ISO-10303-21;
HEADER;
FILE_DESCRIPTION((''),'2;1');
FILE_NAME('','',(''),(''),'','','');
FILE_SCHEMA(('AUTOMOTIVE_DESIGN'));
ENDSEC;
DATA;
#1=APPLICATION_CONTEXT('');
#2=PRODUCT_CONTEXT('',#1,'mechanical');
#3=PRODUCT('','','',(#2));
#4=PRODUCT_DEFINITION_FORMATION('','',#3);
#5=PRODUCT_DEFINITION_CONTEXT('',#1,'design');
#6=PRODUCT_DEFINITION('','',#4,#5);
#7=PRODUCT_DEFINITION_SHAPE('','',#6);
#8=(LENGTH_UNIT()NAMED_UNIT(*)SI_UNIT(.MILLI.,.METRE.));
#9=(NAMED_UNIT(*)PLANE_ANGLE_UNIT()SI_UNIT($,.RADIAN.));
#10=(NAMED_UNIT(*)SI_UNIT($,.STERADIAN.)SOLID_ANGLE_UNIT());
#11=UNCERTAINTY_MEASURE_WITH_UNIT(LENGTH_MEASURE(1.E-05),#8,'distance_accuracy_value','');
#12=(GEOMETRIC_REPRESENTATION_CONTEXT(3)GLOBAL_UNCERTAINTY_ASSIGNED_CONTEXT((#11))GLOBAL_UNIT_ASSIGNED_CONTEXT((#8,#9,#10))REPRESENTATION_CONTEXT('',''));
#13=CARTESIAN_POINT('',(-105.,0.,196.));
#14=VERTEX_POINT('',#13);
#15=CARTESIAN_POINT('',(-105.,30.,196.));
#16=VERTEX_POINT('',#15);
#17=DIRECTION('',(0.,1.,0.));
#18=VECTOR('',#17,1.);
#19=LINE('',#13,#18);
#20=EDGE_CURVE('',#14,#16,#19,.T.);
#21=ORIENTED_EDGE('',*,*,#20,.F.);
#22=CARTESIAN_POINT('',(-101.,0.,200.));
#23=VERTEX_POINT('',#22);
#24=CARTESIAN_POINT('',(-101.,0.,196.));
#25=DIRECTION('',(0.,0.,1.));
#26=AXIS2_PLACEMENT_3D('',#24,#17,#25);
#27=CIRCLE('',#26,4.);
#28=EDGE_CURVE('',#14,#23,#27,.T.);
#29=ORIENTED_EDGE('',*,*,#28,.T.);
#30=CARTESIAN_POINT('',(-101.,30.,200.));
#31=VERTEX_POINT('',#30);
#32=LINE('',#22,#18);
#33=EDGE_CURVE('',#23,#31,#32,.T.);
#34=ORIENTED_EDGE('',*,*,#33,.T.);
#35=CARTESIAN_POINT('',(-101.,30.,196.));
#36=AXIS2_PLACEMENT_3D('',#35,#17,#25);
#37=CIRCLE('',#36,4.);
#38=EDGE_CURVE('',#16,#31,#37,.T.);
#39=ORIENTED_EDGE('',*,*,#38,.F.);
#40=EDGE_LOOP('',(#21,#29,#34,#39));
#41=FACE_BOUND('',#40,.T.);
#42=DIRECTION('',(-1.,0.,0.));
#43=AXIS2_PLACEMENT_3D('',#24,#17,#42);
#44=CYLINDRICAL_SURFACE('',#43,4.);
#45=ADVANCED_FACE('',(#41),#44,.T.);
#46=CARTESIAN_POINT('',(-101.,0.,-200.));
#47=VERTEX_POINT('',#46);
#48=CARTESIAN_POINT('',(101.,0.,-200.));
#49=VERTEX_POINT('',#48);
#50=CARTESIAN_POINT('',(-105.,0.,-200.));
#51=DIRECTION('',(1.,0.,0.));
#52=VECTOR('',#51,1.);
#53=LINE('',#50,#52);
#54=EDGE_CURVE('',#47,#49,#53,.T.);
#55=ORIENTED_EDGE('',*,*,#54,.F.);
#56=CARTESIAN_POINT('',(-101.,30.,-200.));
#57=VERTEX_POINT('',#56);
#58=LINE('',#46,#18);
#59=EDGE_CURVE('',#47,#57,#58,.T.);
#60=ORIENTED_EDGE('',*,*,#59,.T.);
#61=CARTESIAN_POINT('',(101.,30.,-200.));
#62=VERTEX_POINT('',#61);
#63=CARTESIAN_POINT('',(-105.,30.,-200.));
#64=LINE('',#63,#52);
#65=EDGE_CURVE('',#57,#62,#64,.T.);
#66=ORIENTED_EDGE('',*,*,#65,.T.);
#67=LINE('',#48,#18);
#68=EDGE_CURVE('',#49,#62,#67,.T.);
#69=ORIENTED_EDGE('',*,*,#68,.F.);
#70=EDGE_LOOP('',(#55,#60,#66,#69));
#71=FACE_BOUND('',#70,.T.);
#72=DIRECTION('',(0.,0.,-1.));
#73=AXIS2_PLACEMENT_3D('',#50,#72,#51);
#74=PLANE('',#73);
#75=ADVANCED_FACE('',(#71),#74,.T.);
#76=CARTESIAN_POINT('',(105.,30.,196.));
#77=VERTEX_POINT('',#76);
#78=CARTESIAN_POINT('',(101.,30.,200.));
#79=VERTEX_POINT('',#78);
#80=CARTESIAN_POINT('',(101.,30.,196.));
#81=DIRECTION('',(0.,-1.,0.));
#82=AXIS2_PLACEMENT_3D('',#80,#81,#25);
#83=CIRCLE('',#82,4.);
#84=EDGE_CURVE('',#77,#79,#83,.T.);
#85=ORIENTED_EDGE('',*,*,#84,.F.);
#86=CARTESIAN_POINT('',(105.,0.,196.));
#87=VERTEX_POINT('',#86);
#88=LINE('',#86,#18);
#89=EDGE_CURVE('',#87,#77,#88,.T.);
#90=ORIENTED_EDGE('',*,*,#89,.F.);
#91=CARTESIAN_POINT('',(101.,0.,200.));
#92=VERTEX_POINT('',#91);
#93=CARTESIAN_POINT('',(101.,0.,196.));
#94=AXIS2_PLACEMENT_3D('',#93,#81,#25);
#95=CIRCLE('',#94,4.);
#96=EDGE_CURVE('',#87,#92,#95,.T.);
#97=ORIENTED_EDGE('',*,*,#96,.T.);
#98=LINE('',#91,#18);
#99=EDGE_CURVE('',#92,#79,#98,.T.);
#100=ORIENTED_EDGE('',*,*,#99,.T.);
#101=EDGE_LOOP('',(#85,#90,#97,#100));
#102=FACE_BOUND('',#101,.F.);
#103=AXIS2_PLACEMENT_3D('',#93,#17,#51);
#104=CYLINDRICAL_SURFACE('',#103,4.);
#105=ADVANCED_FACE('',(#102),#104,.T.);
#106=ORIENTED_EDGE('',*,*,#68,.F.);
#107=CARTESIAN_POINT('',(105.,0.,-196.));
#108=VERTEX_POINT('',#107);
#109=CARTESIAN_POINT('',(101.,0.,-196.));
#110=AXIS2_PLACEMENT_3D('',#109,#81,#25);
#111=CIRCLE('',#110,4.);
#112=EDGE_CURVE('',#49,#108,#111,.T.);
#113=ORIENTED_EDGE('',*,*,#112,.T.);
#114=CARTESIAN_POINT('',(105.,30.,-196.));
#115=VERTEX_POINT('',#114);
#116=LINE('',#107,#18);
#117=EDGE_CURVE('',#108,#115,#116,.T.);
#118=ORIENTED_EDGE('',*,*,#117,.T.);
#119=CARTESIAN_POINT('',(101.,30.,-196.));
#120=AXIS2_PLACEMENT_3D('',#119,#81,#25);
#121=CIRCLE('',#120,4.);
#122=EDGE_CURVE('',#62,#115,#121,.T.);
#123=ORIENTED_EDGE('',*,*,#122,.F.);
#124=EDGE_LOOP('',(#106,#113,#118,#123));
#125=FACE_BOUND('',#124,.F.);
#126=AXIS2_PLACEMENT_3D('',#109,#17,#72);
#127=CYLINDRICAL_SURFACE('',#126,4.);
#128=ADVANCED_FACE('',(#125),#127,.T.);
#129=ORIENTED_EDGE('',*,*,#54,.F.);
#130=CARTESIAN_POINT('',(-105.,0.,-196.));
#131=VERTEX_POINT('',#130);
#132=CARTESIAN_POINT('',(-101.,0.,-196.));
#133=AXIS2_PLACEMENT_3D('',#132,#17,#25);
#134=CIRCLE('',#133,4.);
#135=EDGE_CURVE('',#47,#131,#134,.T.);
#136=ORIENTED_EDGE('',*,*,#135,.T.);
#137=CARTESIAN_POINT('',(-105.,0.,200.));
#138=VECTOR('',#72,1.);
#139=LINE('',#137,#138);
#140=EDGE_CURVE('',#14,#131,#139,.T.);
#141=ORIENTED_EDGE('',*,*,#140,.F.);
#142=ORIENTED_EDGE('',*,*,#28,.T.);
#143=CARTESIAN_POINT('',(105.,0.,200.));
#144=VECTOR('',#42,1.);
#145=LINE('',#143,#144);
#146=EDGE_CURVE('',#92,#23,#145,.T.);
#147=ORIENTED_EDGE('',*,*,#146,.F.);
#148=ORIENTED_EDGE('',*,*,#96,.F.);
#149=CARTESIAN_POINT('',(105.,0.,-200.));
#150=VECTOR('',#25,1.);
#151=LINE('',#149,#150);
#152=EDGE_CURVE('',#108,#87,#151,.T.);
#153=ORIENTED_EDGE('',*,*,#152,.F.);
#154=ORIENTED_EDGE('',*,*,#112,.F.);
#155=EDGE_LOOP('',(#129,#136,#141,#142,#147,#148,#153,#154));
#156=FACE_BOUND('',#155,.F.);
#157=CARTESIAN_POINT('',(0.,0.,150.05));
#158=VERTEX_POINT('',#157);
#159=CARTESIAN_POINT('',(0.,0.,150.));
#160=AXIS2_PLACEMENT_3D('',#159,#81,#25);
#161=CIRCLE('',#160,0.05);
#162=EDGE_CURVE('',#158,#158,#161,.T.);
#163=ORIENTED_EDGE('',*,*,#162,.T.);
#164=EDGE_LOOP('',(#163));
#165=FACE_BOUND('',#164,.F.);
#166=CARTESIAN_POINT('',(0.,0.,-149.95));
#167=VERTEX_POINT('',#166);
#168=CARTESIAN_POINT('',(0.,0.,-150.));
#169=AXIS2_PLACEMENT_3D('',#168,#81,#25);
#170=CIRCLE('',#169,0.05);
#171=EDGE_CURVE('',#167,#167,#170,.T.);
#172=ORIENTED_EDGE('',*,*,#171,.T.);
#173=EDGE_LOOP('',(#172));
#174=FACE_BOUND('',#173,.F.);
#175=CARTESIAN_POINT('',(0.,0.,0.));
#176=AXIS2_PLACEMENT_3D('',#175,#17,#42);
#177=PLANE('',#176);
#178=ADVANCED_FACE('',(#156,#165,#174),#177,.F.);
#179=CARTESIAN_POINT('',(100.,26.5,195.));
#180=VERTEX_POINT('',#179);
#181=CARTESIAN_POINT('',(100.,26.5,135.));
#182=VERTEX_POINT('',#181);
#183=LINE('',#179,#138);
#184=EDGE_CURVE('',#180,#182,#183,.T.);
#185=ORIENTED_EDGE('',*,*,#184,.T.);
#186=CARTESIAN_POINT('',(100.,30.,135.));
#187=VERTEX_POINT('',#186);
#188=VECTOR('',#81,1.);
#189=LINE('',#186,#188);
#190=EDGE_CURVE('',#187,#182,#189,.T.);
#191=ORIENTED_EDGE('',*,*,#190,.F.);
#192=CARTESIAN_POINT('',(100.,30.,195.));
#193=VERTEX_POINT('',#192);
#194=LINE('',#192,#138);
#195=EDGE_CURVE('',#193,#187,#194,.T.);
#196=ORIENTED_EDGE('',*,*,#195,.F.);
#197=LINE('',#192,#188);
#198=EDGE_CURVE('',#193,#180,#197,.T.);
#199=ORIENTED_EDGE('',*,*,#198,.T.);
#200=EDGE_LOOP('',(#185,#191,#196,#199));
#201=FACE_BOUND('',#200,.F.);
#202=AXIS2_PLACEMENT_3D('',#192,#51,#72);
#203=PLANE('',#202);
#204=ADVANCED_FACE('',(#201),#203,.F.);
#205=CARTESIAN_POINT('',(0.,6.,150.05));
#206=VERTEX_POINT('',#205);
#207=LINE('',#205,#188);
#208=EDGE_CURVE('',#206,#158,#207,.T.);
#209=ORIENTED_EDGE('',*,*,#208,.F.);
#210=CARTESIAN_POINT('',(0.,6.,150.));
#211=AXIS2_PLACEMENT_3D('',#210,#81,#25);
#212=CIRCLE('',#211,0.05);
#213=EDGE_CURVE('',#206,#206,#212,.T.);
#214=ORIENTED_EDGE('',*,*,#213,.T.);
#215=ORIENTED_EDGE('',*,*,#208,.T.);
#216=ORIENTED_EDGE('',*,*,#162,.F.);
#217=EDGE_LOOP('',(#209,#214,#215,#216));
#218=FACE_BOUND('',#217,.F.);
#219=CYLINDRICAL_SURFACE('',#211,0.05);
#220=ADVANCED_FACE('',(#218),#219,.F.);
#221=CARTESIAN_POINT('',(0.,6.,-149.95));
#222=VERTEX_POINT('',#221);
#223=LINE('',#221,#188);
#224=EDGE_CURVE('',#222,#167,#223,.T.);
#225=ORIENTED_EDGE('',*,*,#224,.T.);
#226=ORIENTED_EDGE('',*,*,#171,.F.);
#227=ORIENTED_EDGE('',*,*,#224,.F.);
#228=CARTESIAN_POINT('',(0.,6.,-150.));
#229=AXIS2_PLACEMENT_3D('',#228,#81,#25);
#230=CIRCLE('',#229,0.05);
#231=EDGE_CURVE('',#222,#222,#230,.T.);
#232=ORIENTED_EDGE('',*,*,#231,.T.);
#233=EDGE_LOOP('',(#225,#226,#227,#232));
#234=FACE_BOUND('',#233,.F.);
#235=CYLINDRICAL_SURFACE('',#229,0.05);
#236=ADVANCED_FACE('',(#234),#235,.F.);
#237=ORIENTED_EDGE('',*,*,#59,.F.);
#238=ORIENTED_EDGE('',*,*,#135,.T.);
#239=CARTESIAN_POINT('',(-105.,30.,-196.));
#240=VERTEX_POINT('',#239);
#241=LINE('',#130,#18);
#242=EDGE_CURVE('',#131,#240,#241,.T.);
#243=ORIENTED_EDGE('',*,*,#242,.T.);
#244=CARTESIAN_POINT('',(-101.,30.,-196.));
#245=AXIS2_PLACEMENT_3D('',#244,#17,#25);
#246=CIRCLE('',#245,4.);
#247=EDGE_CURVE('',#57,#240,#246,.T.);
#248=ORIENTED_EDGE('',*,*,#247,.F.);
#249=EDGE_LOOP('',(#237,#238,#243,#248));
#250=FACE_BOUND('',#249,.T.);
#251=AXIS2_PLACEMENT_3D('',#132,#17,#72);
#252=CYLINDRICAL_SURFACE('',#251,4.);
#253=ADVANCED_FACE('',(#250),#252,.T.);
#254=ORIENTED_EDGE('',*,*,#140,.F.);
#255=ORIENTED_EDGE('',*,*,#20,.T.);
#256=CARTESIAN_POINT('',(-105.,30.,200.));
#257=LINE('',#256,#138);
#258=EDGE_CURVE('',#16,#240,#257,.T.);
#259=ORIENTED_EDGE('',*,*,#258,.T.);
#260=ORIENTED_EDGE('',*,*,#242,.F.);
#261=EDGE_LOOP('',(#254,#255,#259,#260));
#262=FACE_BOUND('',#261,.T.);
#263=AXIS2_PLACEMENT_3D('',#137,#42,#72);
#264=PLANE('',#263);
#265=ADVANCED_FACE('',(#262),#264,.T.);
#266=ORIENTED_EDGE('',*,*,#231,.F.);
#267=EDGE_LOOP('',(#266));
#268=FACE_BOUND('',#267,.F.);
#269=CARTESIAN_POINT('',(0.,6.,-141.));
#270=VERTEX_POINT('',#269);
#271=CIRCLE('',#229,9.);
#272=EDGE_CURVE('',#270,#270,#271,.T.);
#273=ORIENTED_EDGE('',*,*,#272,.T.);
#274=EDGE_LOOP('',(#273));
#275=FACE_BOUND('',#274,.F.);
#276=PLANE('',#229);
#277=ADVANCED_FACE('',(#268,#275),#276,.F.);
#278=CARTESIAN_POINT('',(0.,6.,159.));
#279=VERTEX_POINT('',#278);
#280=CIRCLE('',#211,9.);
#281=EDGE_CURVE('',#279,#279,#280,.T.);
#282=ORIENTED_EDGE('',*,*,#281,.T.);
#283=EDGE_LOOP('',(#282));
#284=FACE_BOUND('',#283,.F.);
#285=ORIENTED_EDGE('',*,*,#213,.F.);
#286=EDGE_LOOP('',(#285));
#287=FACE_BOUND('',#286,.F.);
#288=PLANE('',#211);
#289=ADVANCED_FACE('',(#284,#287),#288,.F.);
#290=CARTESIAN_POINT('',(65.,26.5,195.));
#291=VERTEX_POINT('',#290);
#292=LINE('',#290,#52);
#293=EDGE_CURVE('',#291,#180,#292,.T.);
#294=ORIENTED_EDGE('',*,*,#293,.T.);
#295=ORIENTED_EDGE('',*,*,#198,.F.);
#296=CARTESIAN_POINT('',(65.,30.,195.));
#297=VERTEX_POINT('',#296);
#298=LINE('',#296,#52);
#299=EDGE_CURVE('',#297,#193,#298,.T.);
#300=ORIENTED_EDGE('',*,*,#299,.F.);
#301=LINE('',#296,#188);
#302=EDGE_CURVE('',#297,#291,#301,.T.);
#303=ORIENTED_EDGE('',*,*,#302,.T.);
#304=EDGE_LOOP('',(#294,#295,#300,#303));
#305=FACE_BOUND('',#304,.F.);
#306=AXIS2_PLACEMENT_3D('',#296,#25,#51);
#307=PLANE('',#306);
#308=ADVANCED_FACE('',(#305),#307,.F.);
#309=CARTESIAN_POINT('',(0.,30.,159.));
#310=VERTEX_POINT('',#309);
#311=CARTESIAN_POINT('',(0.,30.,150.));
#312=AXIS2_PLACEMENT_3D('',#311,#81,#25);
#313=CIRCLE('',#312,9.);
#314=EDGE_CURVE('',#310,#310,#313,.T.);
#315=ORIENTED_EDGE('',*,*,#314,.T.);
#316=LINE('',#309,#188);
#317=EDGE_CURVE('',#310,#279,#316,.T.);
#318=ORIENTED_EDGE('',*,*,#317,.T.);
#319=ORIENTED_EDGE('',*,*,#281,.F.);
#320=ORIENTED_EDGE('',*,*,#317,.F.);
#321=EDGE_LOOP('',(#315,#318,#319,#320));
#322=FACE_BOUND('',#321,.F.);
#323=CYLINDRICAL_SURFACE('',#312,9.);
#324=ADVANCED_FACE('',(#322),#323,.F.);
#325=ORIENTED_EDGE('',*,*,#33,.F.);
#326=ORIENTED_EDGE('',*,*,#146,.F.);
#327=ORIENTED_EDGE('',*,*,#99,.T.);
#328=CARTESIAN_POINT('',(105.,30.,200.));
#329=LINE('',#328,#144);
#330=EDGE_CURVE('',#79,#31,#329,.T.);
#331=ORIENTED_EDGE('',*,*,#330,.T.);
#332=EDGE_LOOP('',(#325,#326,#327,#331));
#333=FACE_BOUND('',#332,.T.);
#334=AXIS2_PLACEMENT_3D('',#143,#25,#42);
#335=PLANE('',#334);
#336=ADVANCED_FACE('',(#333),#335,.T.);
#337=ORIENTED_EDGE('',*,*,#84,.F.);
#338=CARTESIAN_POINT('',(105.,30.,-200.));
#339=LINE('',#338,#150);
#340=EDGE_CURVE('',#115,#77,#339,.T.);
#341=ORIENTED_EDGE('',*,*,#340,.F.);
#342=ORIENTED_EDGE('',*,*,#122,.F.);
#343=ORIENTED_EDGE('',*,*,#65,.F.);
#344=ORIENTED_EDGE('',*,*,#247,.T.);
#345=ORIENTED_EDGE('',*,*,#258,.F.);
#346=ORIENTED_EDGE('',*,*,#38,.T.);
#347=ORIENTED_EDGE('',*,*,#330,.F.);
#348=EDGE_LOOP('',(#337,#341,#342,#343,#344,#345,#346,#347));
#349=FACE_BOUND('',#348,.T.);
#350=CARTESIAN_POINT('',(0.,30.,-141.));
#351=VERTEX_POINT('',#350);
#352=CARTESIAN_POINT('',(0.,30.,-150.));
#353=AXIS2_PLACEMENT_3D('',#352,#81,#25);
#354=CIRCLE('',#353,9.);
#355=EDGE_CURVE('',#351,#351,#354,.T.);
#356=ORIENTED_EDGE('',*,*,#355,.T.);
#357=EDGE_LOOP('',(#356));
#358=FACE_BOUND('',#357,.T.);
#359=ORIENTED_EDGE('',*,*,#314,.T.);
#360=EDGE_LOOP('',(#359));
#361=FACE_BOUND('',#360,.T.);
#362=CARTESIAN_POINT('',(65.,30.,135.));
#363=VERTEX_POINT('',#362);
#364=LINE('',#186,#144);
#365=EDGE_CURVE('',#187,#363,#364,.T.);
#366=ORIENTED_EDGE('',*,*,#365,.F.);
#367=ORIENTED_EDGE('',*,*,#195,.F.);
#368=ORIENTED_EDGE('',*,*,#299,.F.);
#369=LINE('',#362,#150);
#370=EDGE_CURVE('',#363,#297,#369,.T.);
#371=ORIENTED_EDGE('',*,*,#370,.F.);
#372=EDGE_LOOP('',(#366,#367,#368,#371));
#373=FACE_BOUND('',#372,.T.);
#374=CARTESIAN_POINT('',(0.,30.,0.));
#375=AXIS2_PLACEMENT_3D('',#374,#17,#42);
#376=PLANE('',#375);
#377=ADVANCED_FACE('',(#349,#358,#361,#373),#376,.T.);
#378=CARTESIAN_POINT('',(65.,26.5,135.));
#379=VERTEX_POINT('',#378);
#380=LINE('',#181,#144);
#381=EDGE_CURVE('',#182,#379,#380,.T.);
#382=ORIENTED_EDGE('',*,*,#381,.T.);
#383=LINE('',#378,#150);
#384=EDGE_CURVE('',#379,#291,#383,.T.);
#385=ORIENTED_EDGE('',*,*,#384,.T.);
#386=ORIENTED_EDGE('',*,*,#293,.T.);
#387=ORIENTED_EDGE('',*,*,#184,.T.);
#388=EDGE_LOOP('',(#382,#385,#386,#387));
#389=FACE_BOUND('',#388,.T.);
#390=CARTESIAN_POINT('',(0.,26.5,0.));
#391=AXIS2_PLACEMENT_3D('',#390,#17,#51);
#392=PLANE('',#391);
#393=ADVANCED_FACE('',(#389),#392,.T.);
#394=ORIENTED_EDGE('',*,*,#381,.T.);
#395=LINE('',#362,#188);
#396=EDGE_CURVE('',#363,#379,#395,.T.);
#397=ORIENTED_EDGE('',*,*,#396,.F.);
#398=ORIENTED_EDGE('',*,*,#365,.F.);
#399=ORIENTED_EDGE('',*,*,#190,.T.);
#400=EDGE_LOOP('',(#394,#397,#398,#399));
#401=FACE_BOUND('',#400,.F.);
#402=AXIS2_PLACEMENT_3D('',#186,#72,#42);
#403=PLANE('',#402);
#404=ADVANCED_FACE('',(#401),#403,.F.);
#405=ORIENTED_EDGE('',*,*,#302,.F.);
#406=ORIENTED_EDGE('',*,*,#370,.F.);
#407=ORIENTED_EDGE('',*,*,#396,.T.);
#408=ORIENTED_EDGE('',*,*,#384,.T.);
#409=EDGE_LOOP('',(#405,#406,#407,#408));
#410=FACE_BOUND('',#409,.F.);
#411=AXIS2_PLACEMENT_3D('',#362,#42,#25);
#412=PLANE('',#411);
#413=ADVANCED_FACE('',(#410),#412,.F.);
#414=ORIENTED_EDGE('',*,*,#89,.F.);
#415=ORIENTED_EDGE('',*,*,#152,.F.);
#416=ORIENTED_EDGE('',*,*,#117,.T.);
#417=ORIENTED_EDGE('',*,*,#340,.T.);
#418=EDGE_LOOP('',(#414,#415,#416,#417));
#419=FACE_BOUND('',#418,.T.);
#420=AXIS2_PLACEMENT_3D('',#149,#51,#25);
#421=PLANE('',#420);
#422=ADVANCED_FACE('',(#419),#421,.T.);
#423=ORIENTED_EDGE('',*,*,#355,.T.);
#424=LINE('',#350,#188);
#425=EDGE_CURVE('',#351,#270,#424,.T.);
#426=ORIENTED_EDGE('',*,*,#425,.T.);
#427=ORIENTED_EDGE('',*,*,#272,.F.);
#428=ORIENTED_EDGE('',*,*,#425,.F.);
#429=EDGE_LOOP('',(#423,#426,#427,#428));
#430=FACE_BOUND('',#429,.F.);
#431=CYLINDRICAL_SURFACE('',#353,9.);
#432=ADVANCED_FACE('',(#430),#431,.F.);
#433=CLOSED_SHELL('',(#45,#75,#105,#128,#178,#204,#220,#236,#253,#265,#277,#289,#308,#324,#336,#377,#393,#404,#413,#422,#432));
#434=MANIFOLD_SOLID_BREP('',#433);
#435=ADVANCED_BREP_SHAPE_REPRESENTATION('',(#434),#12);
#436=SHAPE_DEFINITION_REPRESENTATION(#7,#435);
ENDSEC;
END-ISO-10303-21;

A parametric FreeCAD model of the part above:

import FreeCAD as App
import Part
import Sketcher


def edges_at(feature, points):
    """Names of the edges that pass closest to the given points."""
    edges = feature.Shape.Edges
    near = lambda p: min(range(len(edges)), key=lambda i: edges[i].distToShape(Part.Vertex(*p))[0])
    return sorted({f"Edge{near(p) + 1}" for p in points})

doc = App.newDocument("Part")
params = doc.addObject("Spreadsheet::Sheet", "Params")
for row, (alias, value) in enumerate([
    ("sketch1_width", "210 mm"),
    ("sketch1_height", "400 mm"),
    ("pad1_length", "30 mm"),
    ("sketch2_diameter", "0.1 mm"),
    ("hole_diameter", "0.1 mm"),
    ("hole_cbore_diameter", "18 mm"),
    ("hole_cbore_depth", "24 mm"),
    ("sketch3_width", "35 mm"),
    ("sketch3_height", "60 mm"),
    ("pocket1_length", "3.5 mm"),
    ("fillet_radius", "4 mm"),
], start=1):
    params.set(f"A{row}", alias)
    params.set(f"B{row}", "=" + value)
    params.setAlias(f"B{row}", alias)

body = doc.addObject("PartDesign::Body", "Body")

# Sketch on XZ plane
sketch1 = body.newObject("Sketcher::SketchObject", "Sketch")
sketch1.AttachmentSupport = (doc.getObject("XZ_Plane"), [""])
sketch1.MapMode = "FlatFace"
sketch1.addGeometry(Part.LineSegment(App.Vector(105, -200, 0), App.Vector(-105, -200, 0)), False)
sketch1.addGeometry(Part.LineSegment(App.Vector(-105, -200, 0), App.Vector(-105, 200, 0)), False)
sketch1.addGeometry(Part.LineSegment(App.Vector(-105, 200, 0), App.Vector(105, 200, 0)), False)
sketch1.addGeometry(Part.LineSegment(App.Vector(105, 200, 0), App.Vector(105, -200, 0)), False)
sketch1.addConstraint(Sketcher.Constraint("Coincident", 0, 2, 1, 1))
sketch1.addConstraint(Sketcher.Constraint("Coincident", 1, 2, 2, 1))
sketch1.addConstraint(Sketcher.Constraint("Coincident", 2, 2, 3, 1))
sketch1.addConstraint(Sketcher.Constraint("Coincident", 3, 2, 0, 1))
sketch1.addConstraint(Sketcher.Constraint("Horizontal", 0))
sketch1.addConstraint(Sketcher.Constraint("Vertical", 1))
sketch1.addConstraint(Sketcher.Constraint("Horizontal", 2))
sketch1.addConstraint(Sketcher.Constraint("Vertical", 3))
sketch1.addConstraint(Sketcher.Constraint("Symmetric", 0, 2, 2, 2, -1, 1))
sketch1.addConstraint(Sketcher.Constraint("DistanceX", 0, 2, 0, 1, 210.0))
sketch1.addConstraint(Sketcher.Constraint("DistanceY", 1, 1, 1, 2, 400.0))
sketch1.setExpression("Constraints[9]", "Params.sketch1_width")
sketch1.setExpression("Constraints[10]", "Params.sketch1_height")
pad1 = body.newObject("PartDesign::Pad", "Pad")
pad1.Profile = sketch1
pad1.setExpression("Length", "Params.pad1_length")
pad1.Reversed = True

# Sketch on XZ plane
sketch2 = body.newObject("Sketcher::SketchObject", "Sketch001")
sketch2.AttachmentSupport = (doc.getObject("XZ_Plane"), [""])
sketch2.MapMode = "FlatFace"
sketch2.AttachmentOffset = App.Placement(App.Vector(0, 0, -30), App.Rotation())
sketch2.addGeometry(Part.Circle(App.Vector(0, -150, 0), App.Vector(0, 0, 1), 0.05), False)
sketch2.addGeometry(Part.Circle(App.Vector(0, 150, 0), App.Vector(0, 0, 1), 0.05), False)
sketch2.addConstraint(Sketcher.Constraint("Equal", 0, 1))
sketch2.addConstraint(Sketcher.Constraint("Symmetric", 0, 3, 1, 3, -1, 1))
sketch2.addConstraint(Sketcher.Constraint("PointOnObject", 0, 3, -2))
sketch2.addConstraint(Sketcher.Constraint("Diameter", 0, 0.1))
sketch2.addConstraint(Sketcher.Constraint("DistanceY", 0, 3, -1, 1, 150.0))
sketch2.setExpression("Constraints[3]", "Params.sketch2_diameter")
doc.recompute()
hole = body.newObject("PartDesign::Hole", "Hole")
hole.Profile = sketch2
hole.ThreadType = "None"
hole.setExpression("Diameter", "Params.hole_diameter")
hole.DepthType = "ThroughAll"
hole.HoleCutType = "Counterbore"
hole.setExpression("HoleCutDiameter", "Params.hole_cbore_diameter")
hole.setExpression("HoleCutDepth", "Params.hole_cbore_depth")
hole.Reversed = True

# Sketch on XZ plane
sketch3 = body.newObject("Sketcher::SketchObject", "Sketch002")
sketch3.AttachmentSupport = (doc.getObject("XZ_Plane"), [""])
sketch3.MapMode = "FlatFace"
sketch3.AttachmentOffset = App.Placement(App.Vector(0, 0, -30), App.Rotation())
sketch3.addGeometry(Part.LineSegment(App.Vector(65, 135, 0), App.Vector(65, 195, 0)), False)
sketch3.addGeometry(Part.LineSegment(App.Vector(65, 195, 0), App.Vector(100, 195, 0)), False)
sketch3.addGeometry(Part.LineSegment(App.Vector(100, 195, 0), App.Vector(100, 135, 0)), False)
sketch3.addGeometry(Part.LineSegment(App.Vector(100, 135, 0), App.Vector(65, 135, 0)), False)
sketch3.addConstraint(Sketcher.Constraint("Coincident", 0, 2, 1, 1))
sketch3.addConstraint(Sketcher.Constraint("Coincident", 1, 2, 2, 1))
sketch3.addConstraint(Sketcher.Constraint("Coincident", 2, 2, 3, 1))
sketch3.addConstraint(Sketcher.Constraint("Coincident", 3, 2, 0, 1))
sketch3.addConstraint(Sketcher.Constraint("Vertical", 0))
sketch3.addConstraint(Sketcher.Constraint("Horizontal", 1))
sketch3.addConstraint(Sketcher.Constraint("Vertical", 2))
sketch3.addConstraint(Sketcher.Constraint("Horizontal", 3))
sketch3.addConstraint(Sketcher.Constraint("DistanceX", 1, 1, 1, 2, 35.0))
sketch3.addConstraint(Sketcher.Constraint("DistanceY", 0, 1, 0, 2, 60.0))
sketch3.addConstraint(Sketcher.Constraint("DistanceX", -1, 1, 0, 2, 65.0))
sketch3.addConstraint(Sketcher.Constraint("DistanceY", -1, 1, 0, 2, 195.0))
sketch3.setExpression("Constraints[8]", "Params.sketch3_width")
sketch3.setExpression("Constraints[9]", "Params.sketch3_height")
pocket1 = body.newObject("PartDesign::Pocket", "Pocket")
pocket1.Profile = sketch3
pocket1.setExpression("Length", "Params.pocket1_length")
pocket1.Reversed = True
doc.recompute()

fillet = body.newObject("PartDesign::Fillet", "Fillet")
fillet.Base = (pocket1, edges_at(pocket1, [
    (105, 15, 200),
    (-105, 15, 200),
    (105, 15, -200),
    (-105, 15, -200),
]))
fillet.setExpression("Radius", "Params.fillet_radius")

doc.recompute()
